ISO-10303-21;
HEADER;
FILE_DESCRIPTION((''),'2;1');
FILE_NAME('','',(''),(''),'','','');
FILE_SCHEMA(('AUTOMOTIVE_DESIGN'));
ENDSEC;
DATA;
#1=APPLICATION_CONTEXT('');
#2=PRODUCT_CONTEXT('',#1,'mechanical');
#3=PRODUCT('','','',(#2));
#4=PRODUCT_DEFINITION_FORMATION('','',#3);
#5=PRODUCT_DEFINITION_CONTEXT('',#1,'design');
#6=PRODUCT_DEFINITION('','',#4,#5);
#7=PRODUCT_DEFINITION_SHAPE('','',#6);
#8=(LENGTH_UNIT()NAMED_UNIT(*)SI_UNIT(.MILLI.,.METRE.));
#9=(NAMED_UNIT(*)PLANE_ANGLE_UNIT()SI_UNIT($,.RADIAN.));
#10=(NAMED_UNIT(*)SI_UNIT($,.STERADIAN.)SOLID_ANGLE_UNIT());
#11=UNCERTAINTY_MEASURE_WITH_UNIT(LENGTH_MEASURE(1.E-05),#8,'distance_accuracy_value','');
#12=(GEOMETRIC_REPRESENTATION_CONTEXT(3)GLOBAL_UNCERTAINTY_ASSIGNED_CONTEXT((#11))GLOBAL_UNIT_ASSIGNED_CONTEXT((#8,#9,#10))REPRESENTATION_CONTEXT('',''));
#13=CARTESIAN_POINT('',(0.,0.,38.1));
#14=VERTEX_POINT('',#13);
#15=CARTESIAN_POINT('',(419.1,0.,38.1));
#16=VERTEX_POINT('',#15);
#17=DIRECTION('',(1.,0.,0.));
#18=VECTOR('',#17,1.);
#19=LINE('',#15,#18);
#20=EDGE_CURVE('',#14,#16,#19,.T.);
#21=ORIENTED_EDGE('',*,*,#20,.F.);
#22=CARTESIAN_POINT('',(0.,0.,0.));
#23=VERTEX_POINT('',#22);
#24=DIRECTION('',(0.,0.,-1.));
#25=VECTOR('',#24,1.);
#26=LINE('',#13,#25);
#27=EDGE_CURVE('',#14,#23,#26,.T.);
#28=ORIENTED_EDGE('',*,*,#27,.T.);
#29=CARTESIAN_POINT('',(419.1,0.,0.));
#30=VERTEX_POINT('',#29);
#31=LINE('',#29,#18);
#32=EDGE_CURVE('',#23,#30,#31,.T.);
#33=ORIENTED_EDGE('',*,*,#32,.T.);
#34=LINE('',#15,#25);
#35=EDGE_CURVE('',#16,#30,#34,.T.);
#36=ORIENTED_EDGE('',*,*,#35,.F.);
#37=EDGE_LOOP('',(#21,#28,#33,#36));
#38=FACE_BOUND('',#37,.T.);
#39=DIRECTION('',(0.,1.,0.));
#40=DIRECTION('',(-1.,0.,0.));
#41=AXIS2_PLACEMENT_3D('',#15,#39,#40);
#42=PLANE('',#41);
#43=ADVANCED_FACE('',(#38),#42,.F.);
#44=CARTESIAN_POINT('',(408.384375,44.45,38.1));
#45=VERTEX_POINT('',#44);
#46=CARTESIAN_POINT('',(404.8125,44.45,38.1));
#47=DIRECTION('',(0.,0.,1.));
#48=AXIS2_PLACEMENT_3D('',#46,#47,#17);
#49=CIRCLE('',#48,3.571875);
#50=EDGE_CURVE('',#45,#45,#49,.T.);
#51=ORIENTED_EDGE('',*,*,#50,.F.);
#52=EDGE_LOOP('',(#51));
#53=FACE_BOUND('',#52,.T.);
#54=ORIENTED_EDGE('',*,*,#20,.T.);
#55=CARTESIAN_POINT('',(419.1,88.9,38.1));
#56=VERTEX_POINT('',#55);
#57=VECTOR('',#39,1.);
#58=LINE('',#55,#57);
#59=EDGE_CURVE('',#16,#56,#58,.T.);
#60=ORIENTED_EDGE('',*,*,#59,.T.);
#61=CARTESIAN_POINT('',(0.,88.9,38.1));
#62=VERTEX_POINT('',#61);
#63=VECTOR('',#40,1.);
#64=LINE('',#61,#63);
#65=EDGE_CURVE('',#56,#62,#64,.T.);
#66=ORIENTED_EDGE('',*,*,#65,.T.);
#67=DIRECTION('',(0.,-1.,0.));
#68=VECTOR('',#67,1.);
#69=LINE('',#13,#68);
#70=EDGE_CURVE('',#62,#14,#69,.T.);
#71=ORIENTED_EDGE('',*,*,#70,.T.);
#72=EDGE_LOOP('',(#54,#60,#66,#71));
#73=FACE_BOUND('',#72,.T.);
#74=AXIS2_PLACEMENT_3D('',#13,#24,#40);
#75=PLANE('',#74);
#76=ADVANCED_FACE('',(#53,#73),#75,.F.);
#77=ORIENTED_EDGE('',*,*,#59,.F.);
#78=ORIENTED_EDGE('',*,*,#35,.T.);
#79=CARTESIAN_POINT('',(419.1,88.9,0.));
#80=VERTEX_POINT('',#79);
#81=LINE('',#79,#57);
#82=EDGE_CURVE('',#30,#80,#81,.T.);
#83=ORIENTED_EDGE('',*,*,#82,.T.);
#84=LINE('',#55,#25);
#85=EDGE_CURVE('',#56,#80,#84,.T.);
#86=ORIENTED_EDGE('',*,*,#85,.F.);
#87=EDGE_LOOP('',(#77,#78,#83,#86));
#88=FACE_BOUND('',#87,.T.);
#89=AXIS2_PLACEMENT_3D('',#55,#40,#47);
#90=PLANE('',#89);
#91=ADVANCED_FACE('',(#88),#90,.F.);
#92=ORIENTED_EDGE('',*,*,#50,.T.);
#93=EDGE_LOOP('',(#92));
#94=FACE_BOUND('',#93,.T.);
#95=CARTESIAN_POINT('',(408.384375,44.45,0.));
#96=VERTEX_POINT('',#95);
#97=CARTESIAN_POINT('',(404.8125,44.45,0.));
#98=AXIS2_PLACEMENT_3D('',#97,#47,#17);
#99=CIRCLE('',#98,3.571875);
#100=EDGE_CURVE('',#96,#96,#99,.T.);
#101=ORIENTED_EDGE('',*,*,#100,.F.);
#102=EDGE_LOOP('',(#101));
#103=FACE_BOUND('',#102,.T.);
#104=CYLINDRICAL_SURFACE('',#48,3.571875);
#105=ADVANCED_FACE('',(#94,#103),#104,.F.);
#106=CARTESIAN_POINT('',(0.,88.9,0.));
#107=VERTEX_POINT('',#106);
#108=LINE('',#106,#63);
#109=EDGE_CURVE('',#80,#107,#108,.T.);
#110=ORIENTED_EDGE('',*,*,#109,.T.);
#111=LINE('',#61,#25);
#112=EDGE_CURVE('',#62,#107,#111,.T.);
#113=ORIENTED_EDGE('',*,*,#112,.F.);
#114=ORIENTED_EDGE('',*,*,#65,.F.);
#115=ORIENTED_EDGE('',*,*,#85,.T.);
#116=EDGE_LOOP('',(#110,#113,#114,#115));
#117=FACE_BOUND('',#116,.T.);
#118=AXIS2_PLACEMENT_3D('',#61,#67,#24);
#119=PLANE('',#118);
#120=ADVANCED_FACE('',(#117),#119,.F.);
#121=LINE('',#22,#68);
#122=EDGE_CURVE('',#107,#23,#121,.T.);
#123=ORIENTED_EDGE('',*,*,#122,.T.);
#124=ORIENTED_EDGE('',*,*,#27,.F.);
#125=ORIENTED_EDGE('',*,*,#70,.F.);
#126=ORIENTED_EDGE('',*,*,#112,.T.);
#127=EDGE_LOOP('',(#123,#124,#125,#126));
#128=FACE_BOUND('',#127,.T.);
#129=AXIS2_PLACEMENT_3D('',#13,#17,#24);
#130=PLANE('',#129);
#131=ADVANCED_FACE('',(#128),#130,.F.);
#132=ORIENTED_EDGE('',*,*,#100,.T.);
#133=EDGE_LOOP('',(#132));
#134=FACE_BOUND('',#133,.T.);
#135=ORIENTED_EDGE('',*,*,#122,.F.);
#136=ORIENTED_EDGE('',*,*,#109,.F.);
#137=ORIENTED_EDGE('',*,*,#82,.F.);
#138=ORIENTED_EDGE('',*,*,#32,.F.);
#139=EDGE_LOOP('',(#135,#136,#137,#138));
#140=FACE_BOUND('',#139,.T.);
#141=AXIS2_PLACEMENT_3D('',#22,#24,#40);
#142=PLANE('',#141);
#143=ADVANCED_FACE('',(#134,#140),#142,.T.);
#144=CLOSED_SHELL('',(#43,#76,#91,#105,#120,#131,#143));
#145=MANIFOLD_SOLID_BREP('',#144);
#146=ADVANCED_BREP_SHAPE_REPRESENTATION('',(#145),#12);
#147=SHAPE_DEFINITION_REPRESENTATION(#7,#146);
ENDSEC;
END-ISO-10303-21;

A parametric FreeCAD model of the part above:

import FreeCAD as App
import Part
import Sketcher
Q = App.Units.Quantity

doc = App.newDocument("Part")
params = doc.addObject("Spreadsheet::Sheet", "Params")
for row, (alias, value) in enumerate([
    ("sketch1_width", "16.5 in"),
    ("sketch1_height", "3.5 in"),
    ("pad1_length", "1.5 in"),
    ("sketch2_diameter", "0.28125 in"),
    ("hole_diameter", "0.28125 in"),
], start=1):
    params.set(f"A{row}", alias)
    params.set(f"B{row}", "=" + value)
    params.setAlias(f"B{row}", alias)

body = doc.addObject("PartDesign::Body", "Body")

# Sketch on XY plane
sketch1 = body.newObject("Sketcher::SketchObject", "Sketch")
sketch1.AttachmentSupport = (doc.getObject("XY_Plane"), [""])
sketch1.MapMode = "FlatFace"
sketch1.addGeometry([
    Part.LineSegment(App.Vector(0, 89, 0), App.Vector(0, 0, 0)),
    Part.LineSegment(App.Vector(0, 0, 0), App.Vector(419, 0, 0)),
    Part.LineSegment(App.Vector(419, 0, 0), App.Vector(419, 89, 0)),
    Part.LineSegment(App.Vector(419, 89, 0), App.Vector(0, 89, 0)),
], False)
sketch1.addConstraint([
    Sketcher.Constraint("Coincident", 0, 2, 1, 1),
    Sketcher.Constraint("Coincident", 1, 2, 2, 1),
    Sketcher.Constraint("Coincident", 2, 2, 3, 1),
    Sketcher.Constraint("Coincident", 3, 2, 0, 1),
    Sketcher.Constraint("Vertical", 0),
    Sketcher.Constraint("Horizontal", 1),
    Sketcher.Constraint("Vertical", 2),
    Sketcher.Constraint("Horizontal", 3),
    Sketcher.Constraint("Coincident", 0, 2, -1, 1),
    Sketcher.Constraint("DistanceX", 1, 1, 1, 2, Q("16.5 in")),
    Sketcher.Constraint("DistanceY", 0, 2, 0, 1, Q("3.5 in")),
])
sketch1.setExpression("Constraints[9]", "Params.sketch1_width")
sketch1.setExpression("Constraints[10]", "Params.sketch1_height")
pad1 = body.newObject("PartDesign::Pad", "Pad")
pad1.Profile = sketch1
pad1.setExpression("Length", "Params.pad1_length")

# Sketch on XY plane
sketch2 = body.newObject("Sketcher::SketchObject", "Sketch001")
sketch2.AttachmentSupport = (doc.getObject("XY_Plane"), [""])
sketch2.MapMode = "FlatFace"
sketch2.AttachmentOffset = App.Placement(App.Vector(0, 0, 1.5 * 25.4), App.Rotation())
sketch2.addGeometry(Part.Circle(App.Vector(404.8, 44.5, 0), App.Vector(0, 0, 1), 3.6), False)
sketch2.addConstraint([
    Sketcher.Constraint("Diameter", 0, Q("0.28125 in")),
    Sketcher.Constraint("DistanceY", -1, 1, 0, 3, Q("1.75 in")),
    Sketcher.Constraint("DistanceX", -1, 1, 0, 3, Q("15.9375 in")),
])
sketch2.setExpression("Constraints[0]", "Params.sketch2_diameter")
doc.recompute()
hole = body.newObject("PartDesign::Hole", "Hole")
hole.Profile = sketch2
hole.ThreadType = "None"
hole.setExpression("Diameter", "Params.hole_diameter")
hole.DepthType = "ThroughAll"

doc.recompute()
